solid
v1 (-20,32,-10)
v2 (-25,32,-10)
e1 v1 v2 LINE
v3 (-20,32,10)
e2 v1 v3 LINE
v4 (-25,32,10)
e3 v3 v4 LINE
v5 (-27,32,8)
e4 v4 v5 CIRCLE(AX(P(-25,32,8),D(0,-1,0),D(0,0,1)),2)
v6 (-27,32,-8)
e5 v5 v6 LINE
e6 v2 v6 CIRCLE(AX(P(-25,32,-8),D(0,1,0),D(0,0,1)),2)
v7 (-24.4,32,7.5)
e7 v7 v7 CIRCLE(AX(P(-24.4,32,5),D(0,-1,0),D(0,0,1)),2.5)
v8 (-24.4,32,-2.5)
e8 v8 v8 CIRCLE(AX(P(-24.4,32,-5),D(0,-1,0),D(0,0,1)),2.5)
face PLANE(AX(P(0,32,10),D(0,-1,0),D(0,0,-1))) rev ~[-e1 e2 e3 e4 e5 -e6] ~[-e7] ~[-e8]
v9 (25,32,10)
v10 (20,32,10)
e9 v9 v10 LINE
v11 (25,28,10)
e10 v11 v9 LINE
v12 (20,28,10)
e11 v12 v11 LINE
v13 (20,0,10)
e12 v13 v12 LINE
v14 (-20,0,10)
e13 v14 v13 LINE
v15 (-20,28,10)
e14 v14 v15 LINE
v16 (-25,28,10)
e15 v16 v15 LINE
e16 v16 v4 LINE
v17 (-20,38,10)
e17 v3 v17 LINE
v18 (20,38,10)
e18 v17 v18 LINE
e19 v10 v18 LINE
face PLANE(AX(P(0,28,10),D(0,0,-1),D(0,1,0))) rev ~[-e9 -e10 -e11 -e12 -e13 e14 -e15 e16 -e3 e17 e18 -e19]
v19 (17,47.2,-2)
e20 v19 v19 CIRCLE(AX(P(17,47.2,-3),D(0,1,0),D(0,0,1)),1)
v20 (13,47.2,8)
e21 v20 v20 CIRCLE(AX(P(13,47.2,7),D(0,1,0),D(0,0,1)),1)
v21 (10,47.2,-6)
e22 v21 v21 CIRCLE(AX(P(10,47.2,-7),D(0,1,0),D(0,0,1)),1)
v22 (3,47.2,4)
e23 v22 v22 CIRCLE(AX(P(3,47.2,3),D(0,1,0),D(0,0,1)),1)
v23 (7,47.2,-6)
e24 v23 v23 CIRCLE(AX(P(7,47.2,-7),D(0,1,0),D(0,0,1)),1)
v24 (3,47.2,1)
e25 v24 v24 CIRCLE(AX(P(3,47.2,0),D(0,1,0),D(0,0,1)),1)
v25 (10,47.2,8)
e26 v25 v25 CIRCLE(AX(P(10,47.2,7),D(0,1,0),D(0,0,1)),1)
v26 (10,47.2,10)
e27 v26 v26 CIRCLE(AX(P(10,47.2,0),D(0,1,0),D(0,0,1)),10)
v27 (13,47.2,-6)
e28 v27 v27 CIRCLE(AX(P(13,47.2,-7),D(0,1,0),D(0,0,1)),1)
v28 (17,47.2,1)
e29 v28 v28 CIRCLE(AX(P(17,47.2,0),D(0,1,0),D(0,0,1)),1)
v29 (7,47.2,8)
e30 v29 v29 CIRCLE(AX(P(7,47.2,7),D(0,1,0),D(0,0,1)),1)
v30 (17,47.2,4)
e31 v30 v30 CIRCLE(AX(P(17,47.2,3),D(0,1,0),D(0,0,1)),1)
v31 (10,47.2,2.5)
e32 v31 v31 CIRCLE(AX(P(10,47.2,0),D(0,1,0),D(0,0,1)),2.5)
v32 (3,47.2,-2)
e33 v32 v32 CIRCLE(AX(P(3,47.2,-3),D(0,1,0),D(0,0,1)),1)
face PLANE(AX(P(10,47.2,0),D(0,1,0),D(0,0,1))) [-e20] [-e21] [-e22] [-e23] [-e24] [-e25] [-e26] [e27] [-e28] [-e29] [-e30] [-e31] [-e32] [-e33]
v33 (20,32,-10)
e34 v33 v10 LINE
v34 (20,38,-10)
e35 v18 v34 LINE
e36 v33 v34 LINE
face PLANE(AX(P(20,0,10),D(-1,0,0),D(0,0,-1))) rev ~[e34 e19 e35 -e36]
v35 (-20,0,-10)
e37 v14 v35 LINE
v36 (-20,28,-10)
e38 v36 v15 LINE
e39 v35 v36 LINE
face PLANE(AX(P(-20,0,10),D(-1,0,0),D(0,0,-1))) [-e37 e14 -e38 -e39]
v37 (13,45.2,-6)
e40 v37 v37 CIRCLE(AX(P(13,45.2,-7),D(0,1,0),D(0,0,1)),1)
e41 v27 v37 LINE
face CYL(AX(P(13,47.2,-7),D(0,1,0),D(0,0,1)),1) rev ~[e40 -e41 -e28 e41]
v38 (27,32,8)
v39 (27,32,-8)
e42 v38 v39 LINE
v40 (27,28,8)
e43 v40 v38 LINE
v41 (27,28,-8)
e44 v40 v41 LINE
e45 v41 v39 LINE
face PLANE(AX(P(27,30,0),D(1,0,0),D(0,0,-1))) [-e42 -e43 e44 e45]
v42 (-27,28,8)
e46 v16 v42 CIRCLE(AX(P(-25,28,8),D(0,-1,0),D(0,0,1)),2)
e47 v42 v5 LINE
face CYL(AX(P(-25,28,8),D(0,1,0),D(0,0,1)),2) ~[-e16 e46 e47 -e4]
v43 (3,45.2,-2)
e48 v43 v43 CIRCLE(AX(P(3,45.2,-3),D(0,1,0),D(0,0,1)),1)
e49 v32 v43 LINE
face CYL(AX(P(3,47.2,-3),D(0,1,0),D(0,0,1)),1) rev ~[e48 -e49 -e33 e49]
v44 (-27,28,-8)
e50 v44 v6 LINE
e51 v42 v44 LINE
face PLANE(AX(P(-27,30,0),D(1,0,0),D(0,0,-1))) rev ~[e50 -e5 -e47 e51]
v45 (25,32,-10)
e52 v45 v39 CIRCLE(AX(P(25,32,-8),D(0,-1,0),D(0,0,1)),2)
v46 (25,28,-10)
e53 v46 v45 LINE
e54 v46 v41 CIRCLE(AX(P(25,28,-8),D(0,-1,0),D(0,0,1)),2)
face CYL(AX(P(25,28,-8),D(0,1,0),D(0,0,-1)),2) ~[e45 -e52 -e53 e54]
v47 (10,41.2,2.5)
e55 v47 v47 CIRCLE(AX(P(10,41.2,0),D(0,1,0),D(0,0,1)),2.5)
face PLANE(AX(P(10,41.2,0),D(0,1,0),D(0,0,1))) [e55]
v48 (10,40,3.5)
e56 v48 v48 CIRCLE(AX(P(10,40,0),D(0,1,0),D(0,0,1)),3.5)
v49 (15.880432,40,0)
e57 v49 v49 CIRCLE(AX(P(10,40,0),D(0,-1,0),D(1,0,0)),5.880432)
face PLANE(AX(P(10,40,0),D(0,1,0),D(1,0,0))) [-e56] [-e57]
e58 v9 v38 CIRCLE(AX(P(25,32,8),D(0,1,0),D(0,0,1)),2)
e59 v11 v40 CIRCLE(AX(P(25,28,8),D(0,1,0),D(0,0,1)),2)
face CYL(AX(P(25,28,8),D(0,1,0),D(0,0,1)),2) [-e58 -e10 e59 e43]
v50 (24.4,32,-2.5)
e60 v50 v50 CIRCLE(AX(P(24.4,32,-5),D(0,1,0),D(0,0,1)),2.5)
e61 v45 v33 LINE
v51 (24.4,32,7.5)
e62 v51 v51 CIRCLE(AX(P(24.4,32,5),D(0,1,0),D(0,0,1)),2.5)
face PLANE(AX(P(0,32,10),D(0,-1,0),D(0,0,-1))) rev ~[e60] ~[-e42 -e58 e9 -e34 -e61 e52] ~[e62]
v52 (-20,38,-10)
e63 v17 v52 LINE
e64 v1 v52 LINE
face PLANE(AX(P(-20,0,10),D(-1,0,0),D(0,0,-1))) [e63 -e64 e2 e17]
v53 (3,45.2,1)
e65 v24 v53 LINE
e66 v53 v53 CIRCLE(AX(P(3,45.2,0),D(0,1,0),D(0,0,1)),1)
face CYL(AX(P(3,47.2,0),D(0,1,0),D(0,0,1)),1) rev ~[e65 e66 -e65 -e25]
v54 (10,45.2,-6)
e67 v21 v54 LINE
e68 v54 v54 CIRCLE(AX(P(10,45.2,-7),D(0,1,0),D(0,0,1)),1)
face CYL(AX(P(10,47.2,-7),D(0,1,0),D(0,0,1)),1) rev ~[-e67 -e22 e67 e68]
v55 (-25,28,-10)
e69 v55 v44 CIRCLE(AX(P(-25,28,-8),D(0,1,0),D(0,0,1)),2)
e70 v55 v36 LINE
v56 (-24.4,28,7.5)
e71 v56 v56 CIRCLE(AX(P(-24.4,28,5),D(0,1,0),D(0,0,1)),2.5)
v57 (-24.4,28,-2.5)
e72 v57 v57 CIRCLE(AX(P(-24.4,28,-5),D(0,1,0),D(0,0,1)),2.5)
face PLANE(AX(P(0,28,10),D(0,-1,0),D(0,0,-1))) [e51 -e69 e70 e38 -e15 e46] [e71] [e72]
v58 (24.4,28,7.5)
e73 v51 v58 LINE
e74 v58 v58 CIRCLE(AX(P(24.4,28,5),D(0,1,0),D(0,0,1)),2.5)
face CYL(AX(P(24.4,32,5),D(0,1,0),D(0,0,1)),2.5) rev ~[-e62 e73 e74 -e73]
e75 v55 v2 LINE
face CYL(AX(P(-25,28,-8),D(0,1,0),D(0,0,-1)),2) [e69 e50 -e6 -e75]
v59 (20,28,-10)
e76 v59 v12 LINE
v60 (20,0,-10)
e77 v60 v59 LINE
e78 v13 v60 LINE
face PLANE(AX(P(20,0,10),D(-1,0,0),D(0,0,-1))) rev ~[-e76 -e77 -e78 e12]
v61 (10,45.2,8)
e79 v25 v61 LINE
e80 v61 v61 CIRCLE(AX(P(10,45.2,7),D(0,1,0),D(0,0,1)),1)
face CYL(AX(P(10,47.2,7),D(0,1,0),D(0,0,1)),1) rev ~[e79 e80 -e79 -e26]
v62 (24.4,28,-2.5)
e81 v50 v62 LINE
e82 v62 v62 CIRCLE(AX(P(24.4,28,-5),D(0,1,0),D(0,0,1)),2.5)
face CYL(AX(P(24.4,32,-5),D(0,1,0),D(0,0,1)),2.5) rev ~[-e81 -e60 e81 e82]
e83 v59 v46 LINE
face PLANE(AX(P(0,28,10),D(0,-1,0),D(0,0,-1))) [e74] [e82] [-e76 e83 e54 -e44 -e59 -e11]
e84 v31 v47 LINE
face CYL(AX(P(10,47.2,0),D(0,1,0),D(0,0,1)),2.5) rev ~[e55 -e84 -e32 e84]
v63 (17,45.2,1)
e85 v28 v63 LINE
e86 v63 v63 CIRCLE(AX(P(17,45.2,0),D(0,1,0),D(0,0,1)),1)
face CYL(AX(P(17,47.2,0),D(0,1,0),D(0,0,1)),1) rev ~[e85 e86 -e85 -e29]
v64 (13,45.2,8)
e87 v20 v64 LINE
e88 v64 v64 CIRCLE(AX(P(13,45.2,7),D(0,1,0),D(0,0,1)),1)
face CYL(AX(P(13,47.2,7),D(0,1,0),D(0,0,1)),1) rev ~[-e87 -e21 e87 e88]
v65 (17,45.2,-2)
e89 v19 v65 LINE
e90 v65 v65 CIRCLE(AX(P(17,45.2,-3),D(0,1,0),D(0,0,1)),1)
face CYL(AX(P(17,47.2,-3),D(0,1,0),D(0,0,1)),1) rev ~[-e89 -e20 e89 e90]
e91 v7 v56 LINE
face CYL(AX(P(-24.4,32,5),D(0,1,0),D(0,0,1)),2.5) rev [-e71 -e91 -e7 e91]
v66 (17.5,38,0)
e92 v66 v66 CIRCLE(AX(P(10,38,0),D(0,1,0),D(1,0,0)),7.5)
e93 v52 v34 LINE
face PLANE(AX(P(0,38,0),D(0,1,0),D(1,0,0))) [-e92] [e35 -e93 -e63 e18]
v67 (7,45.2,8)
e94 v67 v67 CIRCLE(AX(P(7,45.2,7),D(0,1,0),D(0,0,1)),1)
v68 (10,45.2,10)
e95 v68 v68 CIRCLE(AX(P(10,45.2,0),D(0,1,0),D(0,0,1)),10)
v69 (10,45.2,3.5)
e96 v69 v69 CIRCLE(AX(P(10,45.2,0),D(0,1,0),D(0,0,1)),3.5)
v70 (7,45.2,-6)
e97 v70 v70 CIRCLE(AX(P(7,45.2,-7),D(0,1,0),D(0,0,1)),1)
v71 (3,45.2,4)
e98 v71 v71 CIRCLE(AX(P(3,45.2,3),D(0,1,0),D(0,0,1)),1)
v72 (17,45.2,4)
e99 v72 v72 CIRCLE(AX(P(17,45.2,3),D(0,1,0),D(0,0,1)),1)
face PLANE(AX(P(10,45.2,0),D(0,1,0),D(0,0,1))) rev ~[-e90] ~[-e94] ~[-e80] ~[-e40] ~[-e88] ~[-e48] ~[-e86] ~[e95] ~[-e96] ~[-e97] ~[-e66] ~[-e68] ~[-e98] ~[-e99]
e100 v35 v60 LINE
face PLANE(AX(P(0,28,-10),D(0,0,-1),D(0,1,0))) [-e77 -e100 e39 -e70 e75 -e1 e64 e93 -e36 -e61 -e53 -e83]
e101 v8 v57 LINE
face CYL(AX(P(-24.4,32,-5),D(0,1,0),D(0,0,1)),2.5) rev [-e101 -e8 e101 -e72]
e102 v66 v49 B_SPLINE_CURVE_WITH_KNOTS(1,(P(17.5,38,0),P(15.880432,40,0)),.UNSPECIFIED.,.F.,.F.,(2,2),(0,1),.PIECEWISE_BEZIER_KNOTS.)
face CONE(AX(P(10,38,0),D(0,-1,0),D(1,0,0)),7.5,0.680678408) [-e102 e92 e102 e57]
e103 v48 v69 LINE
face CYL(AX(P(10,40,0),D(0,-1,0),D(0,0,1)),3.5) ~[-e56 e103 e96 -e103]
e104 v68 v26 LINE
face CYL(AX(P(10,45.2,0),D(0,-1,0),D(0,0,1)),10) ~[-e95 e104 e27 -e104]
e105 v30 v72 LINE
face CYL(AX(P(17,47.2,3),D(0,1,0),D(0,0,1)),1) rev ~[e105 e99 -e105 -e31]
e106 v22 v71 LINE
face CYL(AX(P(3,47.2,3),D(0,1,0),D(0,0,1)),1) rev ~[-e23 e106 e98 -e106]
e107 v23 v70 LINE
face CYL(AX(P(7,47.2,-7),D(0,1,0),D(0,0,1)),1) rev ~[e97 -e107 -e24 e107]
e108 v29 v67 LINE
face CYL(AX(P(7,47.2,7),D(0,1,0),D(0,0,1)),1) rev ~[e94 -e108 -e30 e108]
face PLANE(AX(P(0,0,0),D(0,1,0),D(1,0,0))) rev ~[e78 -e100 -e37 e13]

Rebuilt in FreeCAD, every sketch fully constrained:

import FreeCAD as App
import Part
import Sketcher
Q = App.Units.Quantity


def edges_at(feature, points):
    """Names of the edges that pass closest to the given points."""
    edges = feature.Shape.Edges
    near = lambda p: min(range(len(edges)), key=lambda i: edges[i].distToShape(Part.Vertex(*p))[0])
    return sorted({f"Edge{near(p) + 1}" for p in points})


def add_polygon(sketch, points):
    """Adds a closed chain of lines whose ends are joined by coincident constraints."""
    first, n = sketch.GeometryCount, len(points)
    for a, b in zip(points, points[1:] + points[:1]):
        sketch.addGeometry(Part.LineSegment(App.Vector(*a, 0), App.Vector(*b, 0)), False)
    for i in range(n):
        sketch.addConstraint(Sketcher.Constraint("Coincident", first + i, 2, first + (i + 1) % n, 1))

doc = App.newDocument("Part")
params = doc.addObject("Spreadsheet::Sheet", "Params")
for row, (alias, value) in enumerate([
    ("sketch1_width", "40 mm"),
    ("sketch1_height", "20 mm"),
    ("pad1_length", "38 mm"),
    ("sketch2_width", "4 mm"),
    ("sketch2_height", "20 mm"),
    ("pad2_length", "54 mm"),
    ("sketch3_diameter", "5 mm"),
    ("pocket1_length", "53.6 mm"),
    ("sketch4_diameter", "15 mm"),
    ("pad3_length", "2 mm"),
    ("pad3_taper", "-39 deg"),
    ("sketch5_diameter", "7 mm"),
    ("pad4_length", "5.2 mm"),
    ("sketch6_diameter", "20 mm"),
    ("pad5_length", "2 mm"),
    ("fillet_radius", "2 mm"),
    ("sketch7_diameter", "5 mm"),
    ("sketch7_diameter2", "2 mm"),
    ("pocket2_length", "6 mm"),
], start=1):
    params.set(f"A{row}", alias)
    params.set(f"B{row}", "=" + value)
    params.setAlias(f"B{row}", alias)

body = doc.addObject("PartDesign::Body", "Body")

sketch1 = doc.addObject("Sketcher::SketchObject", "Sketch")
body.addObject(sketch1)
sketch1.AttachmentSupport = (doc.XZ_Plane, [""])
sketch1.MapMode = "FlatFace"
add_polygon(sketch1, [(-20, -10), (-20, 10), (20, 10), (20, -10)])
sketch1.addConstraint([
    Sketcher.Constraint("Vertical", 0),
    Sketcher.Constraint("Horizontal", 1),
    Sketcher.Constraint("Vertical", 2),
    Sketcher.Constraint("Horizontal", 3),
    Sketcher.Constraint("Symmetric", 0, 2, 2, 2, -1, 1),
    Sketcher.Constraint("DistanceX", 1, 1, 1, 2, Q("40 mm")),
    Sketcher.Constraint("DistanceY", 0, 1, 0, 2, Q("20 mm")),
])
sketch1.setExpression("Constraints[9]", "Params.sketch1_width")
sketch1.setExpression("Constraints[10]", "Params.sketch1_height")
pad1 = doc.addObject("PartDesign::Pad", "Pad")
body.addObject(pad1)
pad1.Profile = sketch1
pad1.setExpression("Length", "Params.pad1_length")
pad1.Reversed = True

sketch2 = doc.addObject("Sketcher::SketchObject", "Sketch001")
body.addObject(sketch2)
sketch2.AttachmentSupport = (doc.YZ_Plane, [""])
sketch2.MapMode = "FlatFace"
add_polygon(sketch2, [(32, 10), (28, 10), (28, -10), (32, -10)])
sketch2.addConstraint([
    Sketcher.Constraint("Horizontal", 0),
    Sketcher.Constraint("Vertical", 1),
    Sketcher.Constraint("Horizontal", 2),
    Sketcher.Constraint("Vertical", 3),
    Sketcher.Constraint("DistanceX", 0, 2, 0, 1, Q("4 mm")),
    Sketcher.Constraint("DistanceY", 1, 2, 1, 1, Q("20 mm")),
    Sketcher.Constraint("DistanceX", -1, 1, 0, 2, Q("28 mm")),
    Sketcher.Constraint("DistanceY", -1, 1, 0, 2, Q("10 mm")),
])
sketch2.setExpression("Constraints[8]", "Params.sketch2_width")
sketch2.setExpression("Constraints[9]", "Params.sketch2_height")
pad2 = doc.addObject("PartDesign::Pad", "Pad001")
body.addObject(pad2)
pad2.Profile = sketch2
pad2.setExpression("Length", "Params.pad2_length")
pad2.Midplane = True

sketch3 = doc.addObject("Sketcher::SketchObject", "Sketch002")
body.addObject(sketch3)
sketch3.AttachmentSupport = (doc.XZ_Plane, [""])
sketch3.MapMode = "FlatFace"
sketch3.AttachmentOffset = App.Placement(App.Vector(0, 0, -32), App.Rotation())
sketch3.addGeometry([
    Part.Circle(App.Vector(24.4, -5, 0), App.Vector(0, 0, 1), 2.5),
    Part.Circle(App.Vector(24.4, 5, 0), App.Vector(0, 0, 1), 2.5),
], False)
sketch3.addConstraint([
    Sketcher.Constraint("Equal", 0, 1),
    Sketcher.Constraint("Symmetric", 0, 3, 1, 3, -1),
    Sketcher.Constraint("Diameter", 0, Q("5 mm")),
    Sketcher.Constraint("DistanceY", 0, 3, -1, 1, Q("5 mm")),
    Sketcher.Constraint("DistanceX", -1, 1, 0, 3, Q("24.4 mm")),
])
sketch3.setExpression("Constraints[2]", "Params.sketch3_diameter")
pocket1 = doc.addObject("PartDesign::Pocket", "Pocket")
body.addObject(pocket1)
pocket1.Profile = sketch3
pocket1.setExpression("Length", "Params.pocket1_length")
pocket1.Reversed = True
doc.recompute()

mirrored = doc.addObject("PartDesign::Mirrored", "Mirrored")
body.addObject(mirrored)
mirrored.Originals = [pocket1]
mirrored.MirrorPlane = (doc.YZ_Plane, [""])
body.Tip = mirrored

sketch4 = doc.addObject("Sketcher::SketchObject", "Sketch003")
body.addObject(sketch4)
sketch4.AttachmentSupport = (doc.XZ_Plane, [""])
sketch4.MapMode = "FlatFace"
sketch4.AttachmentOffset = App.Placement(App.Vector(0, 0, -38), App.Rotation())
sketch4.addGeometry(Part.Circle(App.Vector(10, 0, 0), App.Vector(0, 0, 1), 8), False)
sketch4.addConstraint([
    Sketcher.Constraint("PointOnObject", 0, 3, -1),
    Sketcher.Constraint("Diameter", 0, Q("15 mm")),
    Sketcher.Constraint("DistanceX", -1, 1, 0, 3, Q("10 mm")),
])
sketch4.setExpression("Constraints[1]", "Params.sketch4_diameter")
pad3 = doc.addObject("PartDesign::Pad", "Pad002")
body.addObject(pad3)
pad3.Profile = sketch4
pad3.setExpression("Length", "Params.pad3_length")
pad3.Reversed = True
pad3.setExpression("TaperAngle", "Params.pad3_taper")

sketch5 = doc.addObject("Sketcher::SketchObject", "Sketch004")
body.addObject(sketch5)
sketch5.AttachmentSupport = (doc.XZ_Plane, [""])
sketch5.MapMode = "FlatFace"
sketch5.AttachmentOffset = App.Placement(App.Vector(0, 0, -40), App.Rotation())
sketch5.addGeometry(Part.Circle(App.Vector(10, 0, 0), App.Vector(0, 0, 1), 3.5), False)
sketch5.addConstraint([
    Sketcher.Constraint("PointOnObject", 0, 3, -1),
    Sketcher.Constraint("Diameter", 0, Q("7 mm")),
    Sketcher.Constraint("DistanceX", -1, 1, 0, 3, Q("10 mm")),
])
sketch5.setExpression("Constraints[1]", "Params.sketch5_diameter")
pad4 = doc.addObject("PartDesign::Pad", "Pad003")
body.addObject(pad4)
pad4.Profile = sketch5
pad4.setExpression("Length", "Params.pad4_length")
pad4.Reversed = True

sketch6 = doc.addObject("Sketcher::SketchObject", "Sketch005")
body.addObject(sketch6)
sketch6.AttachmentSupport = (doc.XZ_Plane, [""])
sketch6.MapMode = "FlatFace"
sketch6.AttachmentOffset = App.Placement(App.Vector(0, 0, -45.2), App.Rotation())
sketch6.addGeometry(Part.Circle(App.Vector(10, 0, 0), App.Vector(0, 0, 1), 10), False)
sketch6.addConstraint([
    Sketcher.Constraint("PointOnObject", 0, 3, -1),
    Sketcher.Constraint("Diameter", 0, Q("20 mm")),
    Sketcher.Constraint("DistanceX", -1, 1, 0, 3, Q("10 mm")),
])
sketch6.setExpression("Constraints[1]", "Params.sketch6_diameter")
pad5 = doc.addObject("PartDesign::Pad", "Pad004")
body.addObject(pad5)
pad5.Profile = sketch6
pad5.setExpression("Length", "Params.pad5_length")
pad5.Reversed = True
doc.recompute()

fillet = doc.addObject("PartDesign::Fillet", "Fillet")
body.addObject(fillet)
fillet.Base = (pad5, edges_at(pad5, [
    (-27, 30, -10),
    (-27, 30, 10),
    (27, 30, -10),
    (27, 30, 10),
]))
fillet.setExpression("Radius", "Params.fillet_radius")

sketch7 = doc.addObject("Sketcher::SketchObject", "Sketch006")
body.addObject(sketch7)
sketch7.AttachmentSupport = (doc.XZ_Plane, [""])
sketch7.MapMode = "FlatFace"
sketch7.AttachmentOffset = App.Placement(App.Vector(0, 0, -47.2), App.Rotation())
sketch7.addGeometry([
    Part.Circle(App.Vector(10, 0, 0), App.Vector(0, 0, 1), 2.5),
    Part.Circle(App.Vector(10, -7, 0), App.Vector(0, 0, 1), 1),
    Part.Circle(App.Vector(13, -7, 0), App.Vector(0, 0, 1), 1),
    Part.Circle(App.Vector(7, -7, 0), App.Vector(0, 0, 1), 1),
    Part.Circle(App.Vector(17, -3, 0), App.Vector(0, 0, 1), 1),
    Part.Circle(App.Vector(17, 0, 0), App.Vector(0, 0, 1), 1),
    Part.Circle(App.Vector(17, 3, 0), App.Vector(0, 0, 1), 1),
    Part.Circle(App.Vector(13, 7, 0), App.Vector(0, 0, 1), 1),
    Part.Circle(App.Vector(10, 7, 0), App.Vector(0, 0, 1), 1),
    Part.Circle(App.Vector(7, 7, 0), App.Vector(0, 0, 1), 1),
    Part.Circle(App.Vector(3, 3, 0), App.Vector(0, 0, 1), 1),
    Part.Circle(App.Vector(3, 0, 0), App.Vector(0, 0, 1), 1),
    Part.Circle(App.Vector(3, -3, 0), App.Vector(0, 0, 1), 1),
], False)
sketch7.addConstraint([
    Sketcher.Constraint("Equal", 1, 2),
    Sketcher.Constraint("Equal", 2, 3),
    Sketcher.Constraint("Equal", 3, 4),
    Sketcher.Constraint("Equal", 4, 5),
    Sketcher.Constraint("Equal", 5, 6),
    Sketcher.Constraint("Equal", 6, 7),
    Sketcher.Constraint("Equal", 7, 8),
    Sketcher.Constraint("Equal", 8, 9),
    Sketcher.Constraint("Equal", 9, 10),
    Sketcher.Constraint("Equal", 10, 11),
    Sketcher.Constraint("Equal", 11, 12),
    Sketcher.Constraint("Symmetric", 4, 3, 6, 3, -1),
    Sketcher.Constraint("Symmetric", 2, 3, 7, 3, -1),
    Sketcher.Constraint("Symmetric", 1, 3, 8, 3, -1),
    Sketcher.Constraint("Symmetric", 3, 3, 9, 3, -1),
    Sketcher.Constraint("Symmetric", 10, 3, 12, 3, -1),
    Sketcher.Constraint("PointOnObject", 0, 3, -1),
    Sketcher.Constraint("PointOnObject", 5, 3, -1),
    Sketcher.Constraint("PointOnObject", 11, 3, -1),
    Sketcher.Constraint("Horizontal", 1, 3, 2, 3),
    Sketcher.Constraint("Horizontal", 2, 3, 3, 3),
    Sketcher.Constraint("Horizontal", 6, 3, 10, 3),
    Sketcher.Constraint("Vertical", 0, 3, 1, 3),
    Sketcher.Constraint("Vertical", 4, 3, 5, 3),
    Sketcher.Constraint("Vertical", 10, 3, 11, 3),
    Sketcher.Constraint("Diameter", 0, Q("5 mm")),
    Sketcher.Constraint("Diameter", 1, Q("2 mm")),
    Sketcher.Constraint("DistanceX", -1, 1, 0, 3, Q("10 mm")),
    Sketcher.Constraint("DistanceY", 1, 3, -1, 1, Q("7 mm")),
    Sketcher.Constraint("DistanceX", -1, 1, 2, 3, Q("13 mm")),
    Sketcher.Constraint("DistanceX", -1, 1, 3, 3, Q("7 mm")),
    Sketcher.Constraint("DistanceX", -1, 1, 4, 3, Q("17 mm")),
    Sketcher.Constraint("DistanceY", 4, 3, -1, 1, Q("3 mm")),
    Sketcher.Constraint("DistanceX", -1, 1, 10, 3, Q("3 mm")),
])
sketch7.setExpression("Constraints[25]", "Params.sketch7_diameter")
sketch7.setExpression("Constraints[26]", "Params.sketch7_diameter2")
pocket2 = doc.addObject("PartDesign::Pocket", "Pocket001")
body.addObject(pocket2)
pocket2.Profile = sketch7
pocket2.setExpression("Length", "Params.pocket2_length")
pocket2.Reversed = True

doc.recompute()
